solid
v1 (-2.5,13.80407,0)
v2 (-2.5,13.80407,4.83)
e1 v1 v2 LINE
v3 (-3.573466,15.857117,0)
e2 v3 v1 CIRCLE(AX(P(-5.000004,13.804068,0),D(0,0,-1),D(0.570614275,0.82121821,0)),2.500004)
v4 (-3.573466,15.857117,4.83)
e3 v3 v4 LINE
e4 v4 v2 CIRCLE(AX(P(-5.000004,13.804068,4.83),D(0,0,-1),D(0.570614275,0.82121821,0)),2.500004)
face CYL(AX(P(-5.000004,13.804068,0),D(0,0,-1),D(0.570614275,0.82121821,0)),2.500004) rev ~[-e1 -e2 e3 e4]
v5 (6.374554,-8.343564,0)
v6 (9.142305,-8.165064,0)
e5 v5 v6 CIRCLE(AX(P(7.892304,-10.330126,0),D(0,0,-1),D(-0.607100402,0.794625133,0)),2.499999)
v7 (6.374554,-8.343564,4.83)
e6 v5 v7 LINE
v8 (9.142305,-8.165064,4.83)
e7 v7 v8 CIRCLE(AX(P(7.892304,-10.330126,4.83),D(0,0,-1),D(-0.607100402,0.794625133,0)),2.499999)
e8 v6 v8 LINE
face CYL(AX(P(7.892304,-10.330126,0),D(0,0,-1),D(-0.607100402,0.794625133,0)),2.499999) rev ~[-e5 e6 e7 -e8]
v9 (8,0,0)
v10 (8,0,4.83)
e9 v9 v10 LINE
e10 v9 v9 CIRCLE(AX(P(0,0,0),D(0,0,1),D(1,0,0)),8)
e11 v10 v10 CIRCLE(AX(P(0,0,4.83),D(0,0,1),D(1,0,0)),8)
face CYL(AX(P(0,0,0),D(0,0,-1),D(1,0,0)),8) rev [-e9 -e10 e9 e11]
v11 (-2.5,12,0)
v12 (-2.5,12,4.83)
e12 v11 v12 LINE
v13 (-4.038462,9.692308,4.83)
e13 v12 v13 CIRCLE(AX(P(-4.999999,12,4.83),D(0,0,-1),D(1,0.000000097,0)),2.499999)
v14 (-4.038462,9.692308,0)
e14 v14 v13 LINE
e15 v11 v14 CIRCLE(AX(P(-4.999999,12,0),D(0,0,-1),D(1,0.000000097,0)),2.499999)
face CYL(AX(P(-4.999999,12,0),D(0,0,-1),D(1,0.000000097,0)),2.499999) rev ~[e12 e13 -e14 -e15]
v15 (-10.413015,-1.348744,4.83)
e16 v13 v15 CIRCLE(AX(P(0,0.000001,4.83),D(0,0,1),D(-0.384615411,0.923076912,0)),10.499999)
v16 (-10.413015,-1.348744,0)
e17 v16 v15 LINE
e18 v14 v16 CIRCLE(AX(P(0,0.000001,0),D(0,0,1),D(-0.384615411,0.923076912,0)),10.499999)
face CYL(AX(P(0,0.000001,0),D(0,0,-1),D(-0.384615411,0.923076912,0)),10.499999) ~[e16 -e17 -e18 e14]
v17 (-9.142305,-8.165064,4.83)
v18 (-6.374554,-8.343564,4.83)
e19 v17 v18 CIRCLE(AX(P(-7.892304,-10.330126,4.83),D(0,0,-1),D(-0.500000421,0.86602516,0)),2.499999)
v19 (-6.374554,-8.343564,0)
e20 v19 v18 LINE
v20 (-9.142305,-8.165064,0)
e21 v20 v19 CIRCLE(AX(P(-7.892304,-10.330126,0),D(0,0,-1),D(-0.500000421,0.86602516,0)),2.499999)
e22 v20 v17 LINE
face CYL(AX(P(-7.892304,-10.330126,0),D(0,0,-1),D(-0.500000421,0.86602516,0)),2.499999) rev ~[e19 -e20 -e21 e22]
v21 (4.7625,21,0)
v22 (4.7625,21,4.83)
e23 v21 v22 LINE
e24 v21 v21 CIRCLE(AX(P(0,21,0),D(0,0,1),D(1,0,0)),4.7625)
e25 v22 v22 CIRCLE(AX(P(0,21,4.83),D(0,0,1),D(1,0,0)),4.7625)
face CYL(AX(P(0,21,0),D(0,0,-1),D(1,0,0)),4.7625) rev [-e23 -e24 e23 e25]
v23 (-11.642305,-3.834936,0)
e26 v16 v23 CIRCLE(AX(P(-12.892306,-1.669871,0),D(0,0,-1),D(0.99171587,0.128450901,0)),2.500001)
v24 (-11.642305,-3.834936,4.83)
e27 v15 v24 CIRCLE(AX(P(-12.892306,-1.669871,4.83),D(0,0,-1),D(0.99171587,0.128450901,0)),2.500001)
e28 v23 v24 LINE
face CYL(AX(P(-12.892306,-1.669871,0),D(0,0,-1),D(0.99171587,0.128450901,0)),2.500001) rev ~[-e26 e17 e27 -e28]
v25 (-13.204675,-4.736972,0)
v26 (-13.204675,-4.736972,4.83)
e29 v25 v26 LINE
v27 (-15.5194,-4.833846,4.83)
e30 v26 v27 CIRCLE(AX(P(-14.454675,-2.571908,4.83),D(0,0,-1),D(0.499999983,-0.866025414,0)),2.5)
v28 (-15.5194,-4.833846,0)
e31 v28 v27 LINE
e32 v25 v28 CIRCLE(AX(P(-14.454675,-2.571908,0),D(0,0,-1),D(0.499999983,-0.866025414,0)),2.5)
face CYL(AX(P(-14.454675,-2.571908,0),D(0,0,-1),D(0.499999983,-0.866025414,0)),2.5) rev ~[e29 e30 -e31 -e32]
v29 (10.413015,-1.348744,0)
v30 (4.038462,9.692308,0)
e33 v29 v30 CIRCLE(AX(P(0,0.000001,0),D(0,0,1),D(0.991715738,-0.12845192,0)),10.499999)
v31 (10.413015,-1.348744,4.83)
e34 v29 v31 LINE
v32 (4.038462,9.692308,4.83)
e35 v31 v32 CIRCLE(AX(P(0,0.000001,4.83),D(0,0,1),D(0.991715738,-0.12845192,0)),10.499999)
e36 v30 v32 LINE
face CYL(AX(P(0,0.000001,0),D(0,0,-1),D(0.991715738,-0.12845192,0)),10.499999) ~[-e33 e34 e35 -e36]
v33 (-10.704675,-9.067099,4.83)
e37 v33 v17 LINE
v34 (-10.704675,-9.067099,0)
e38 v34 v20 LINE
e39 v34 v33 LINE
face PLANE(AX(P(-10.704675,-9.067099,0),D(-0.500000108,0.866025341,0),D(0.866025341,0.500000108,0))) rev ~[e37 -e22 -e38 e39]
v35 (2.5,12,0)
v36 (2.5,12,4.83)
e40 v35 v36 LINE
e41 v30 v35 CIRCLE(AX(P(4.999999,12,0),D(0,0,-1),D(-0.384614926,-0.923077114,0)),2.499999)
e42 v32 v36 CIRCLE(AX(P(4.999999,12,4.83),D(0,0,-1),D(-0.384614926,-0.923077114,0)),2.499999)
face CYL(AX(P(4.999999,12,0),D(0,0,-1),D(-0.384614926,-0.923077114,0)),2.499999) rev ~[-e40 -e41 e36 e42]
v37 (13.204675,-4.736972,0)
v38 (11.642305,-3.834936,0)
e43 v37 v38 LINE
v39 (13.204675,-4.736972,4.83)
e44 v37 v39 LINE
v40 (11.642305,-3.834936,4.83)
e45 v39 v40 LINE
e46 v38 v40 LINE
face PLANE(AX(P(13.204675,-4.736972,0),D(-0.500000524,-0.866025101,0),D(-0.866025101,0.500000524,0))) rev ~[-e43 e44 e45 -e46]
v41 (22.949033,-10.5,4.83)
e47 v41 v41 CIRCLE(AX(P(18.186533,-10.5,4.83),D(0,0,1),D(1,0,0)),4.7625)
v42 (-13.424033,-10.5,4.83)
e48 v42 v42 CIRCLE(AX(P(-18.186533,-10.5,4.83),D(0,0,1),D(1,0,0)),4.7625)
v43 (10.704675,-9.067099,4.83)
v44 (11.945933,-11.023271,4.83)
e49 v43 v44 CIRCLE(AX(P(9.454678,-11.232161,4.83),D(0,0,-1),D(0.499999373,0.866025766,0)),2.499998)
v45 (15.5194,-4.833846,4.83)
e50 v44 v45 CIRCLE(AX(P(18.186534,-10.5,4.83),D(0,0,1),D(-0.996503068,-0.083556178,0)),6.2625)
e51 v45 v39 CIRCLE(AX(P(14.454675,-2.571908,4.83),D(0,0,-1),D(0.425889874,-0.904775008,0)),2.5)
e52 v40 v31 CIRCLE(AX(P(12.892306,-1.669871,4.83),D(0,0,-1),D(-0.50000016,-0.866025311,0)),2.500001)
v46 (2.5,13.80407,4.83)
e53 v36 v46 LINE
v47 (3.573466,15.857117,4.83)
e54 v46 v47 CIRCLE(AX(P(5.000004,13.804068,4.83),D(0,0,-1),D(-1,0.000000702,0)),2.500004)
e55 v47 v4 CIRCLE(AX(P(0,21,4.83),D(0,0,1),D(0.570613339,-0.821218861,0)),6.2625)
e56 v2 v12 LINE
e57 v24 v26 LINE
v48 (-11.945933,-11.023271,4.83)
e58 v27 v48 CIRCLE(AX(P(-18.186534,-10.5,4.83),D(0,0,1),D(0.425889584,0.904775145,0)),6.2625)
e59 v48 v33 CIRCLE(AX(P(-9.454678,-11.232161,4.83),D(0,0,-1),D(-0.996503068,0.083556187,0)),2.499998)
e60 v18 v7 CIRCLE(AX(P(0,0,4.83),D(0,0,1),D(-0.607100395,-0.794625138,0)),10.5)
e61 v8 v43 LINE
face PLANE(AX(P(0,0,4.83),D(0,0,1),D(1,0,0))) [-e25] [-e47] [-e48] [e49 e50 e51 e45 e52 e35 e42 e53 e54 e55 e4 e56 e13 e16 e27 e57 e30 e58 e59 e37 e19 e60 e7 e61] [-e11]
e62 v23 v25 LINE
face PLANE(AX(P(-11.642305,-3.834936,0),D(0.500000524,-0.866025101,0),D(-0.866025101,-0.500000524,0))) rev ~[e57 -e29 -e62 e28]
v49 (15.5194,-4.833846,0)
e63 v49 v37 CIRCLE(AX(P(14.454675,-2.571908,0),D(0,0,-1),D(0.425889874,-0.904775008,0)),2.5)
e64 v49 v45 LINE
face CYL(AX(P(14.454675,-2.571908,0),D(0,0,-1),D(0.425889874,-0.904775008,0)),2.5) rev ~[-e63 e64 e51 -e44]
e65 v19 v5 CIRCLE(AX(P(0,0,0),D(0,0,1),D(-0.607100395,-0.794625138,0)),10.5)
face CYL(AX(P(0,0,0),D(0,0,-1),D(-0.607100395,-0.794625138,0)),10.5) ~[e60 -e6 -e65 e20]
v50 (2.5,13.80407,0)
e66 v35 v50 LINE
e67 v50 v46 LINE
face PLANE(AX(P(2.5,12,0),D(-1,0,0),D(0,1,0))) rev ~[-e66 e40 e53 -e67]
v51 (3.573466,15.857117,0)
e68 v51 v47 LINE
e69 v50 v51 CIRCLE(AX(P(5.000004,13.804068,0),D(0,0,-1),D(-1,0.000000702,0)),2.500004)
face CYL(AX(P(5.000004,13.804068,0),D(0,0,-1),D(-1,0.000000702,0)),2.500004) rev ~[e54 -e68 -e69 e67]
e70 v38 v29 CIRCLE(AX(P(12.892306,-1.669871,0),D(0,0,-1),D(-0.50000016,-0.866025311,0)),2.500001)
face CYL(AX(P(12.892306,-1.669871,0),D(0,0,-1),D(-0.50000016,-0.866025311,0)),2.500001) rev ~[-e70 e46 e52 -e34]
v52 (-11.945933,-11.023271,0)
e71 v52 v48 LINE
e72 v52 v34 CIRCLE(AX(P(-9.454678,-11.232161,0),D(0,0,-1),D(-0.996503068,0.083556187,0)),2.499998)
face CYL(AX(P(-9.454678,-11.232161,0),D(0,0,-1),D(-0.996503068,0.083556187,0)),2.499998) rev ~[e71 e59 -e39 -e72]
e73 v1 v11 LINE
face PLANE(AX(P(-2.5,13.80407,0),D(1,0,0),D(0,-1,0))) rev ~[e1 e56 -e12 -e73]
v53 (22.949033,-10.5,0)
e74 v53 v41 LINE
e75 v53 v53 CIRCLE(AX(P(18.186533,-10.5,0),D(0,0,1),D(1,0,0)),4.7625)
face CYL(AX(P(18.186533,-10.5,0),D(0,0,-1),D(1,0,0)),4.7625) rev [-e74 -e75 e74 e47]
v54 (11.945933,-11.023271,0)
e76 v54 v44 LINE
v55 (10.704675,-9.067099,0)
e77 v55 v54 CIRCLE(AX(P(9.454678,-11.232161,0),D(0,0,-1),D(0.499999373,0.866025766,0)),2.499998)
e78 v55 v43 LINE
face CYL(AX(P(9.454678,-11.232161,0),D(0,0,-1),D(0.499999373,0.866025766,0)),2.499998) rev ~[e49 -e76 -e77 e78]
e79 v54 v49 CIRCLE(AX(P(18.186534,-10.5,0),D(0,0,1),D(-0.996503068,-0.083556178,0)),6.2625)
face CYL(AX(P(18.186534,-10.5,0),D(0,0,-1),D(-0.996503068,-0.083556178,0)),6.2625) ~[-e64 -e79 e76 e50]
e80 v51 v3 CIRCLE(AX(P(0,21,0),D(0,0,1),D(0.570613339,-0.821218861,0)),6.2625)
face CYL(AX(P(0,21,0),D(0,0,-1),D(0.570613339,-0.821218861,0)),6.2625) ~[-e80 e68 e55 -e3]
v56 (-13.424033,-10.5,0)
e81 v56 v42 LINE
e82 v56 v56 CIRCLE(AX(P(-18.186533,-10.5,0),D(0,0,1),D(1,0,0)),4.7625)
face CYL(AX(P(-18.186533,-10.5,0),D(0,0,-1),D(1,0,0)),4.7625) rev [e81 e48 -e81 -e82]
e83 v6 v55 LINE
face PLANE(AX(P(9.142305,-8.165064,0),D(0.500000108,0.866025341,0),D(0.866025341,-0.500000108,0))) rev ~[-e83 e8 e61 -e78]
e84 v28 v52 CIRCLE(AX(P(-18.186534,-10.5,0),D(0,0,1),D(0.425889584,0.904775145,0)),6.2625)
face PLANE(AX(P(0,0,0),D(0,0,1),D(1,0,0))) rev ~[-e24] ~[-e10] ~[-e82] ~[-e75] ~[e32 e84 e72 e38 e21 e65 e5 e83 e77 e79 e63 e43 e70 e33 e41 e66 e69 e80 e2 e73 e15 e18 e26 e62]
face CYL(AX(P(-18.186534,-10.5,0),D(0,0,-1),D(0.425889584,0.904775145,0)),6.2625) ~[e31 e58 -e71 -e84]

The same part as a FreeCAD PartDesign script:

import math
import FreeCAD as App
import Part
import Sketcher
Q = App.Units.Quantity

doc = App.newDocument("Part")
body = doc.addObject("PartDesign::Body", "Body")

sketch1 = body.newObject("Sketcher::SketchObject", "Sketch")
sketch1.AttachmentSupport = (doc.getObject("XY_Plane"), [""])
sketch1.MapMode = "FlatFace"
sketch1.addGeometry([
    Part.ArcOfCircle(Part.Circle(App.Vector(5, 13.8, 0), App.Vector(0, 0, 1), 2.5), math.radians(125), math.radians(180)),
    Part.ArcOfCircle(Part.Circle(App.Vector(0, 21, 0), App.Vector(0, 0, 1), 6.3), math.radians(-55), math.radians(235)),
    Part.ArcOfCircle(Part.Circle(App.Vector(-5, 13.8, 0), App.Vector(0, 0, 1), 2.5), math.radians(0), math.radians(55)),
    Part.LineSegment(App.Vector(-2.5, 13.8, 0), App.Vector(-2.5, 12, 0)),
    Part.ArcOfCircle(Part.Circle(App.Vector(-5, 12, 0), App.Vector(0, 0, 1), 2.5), math.radians(-67), math.radians(0)),
    Part.ArcOfCircle(Part.Circle(App.Vector(0, 0, 0), App.Vector(0, 0, 1), 10.5), math.radians(113), math.radians(187)),
    Part.ArcOfCircle(Part.Circle(App.Vector(-12.9, -1.7, 0), App.Vector(0, 0, 1), 2.5), math.radians(-60), math.radians(7)),
    Part.LineSegment(App.Vector(-11.6, -3.8, 0), App.Vector(-13.2, -4.7, 0)),
    Part.ArcOfCircle(Part.Circle(App.Vector(-14.5, -2.6, 0), App.Vector(0, 0, 1), 2.5), math.radians(-115), math.radians(-60)),
    Part.ArcOfCircle(Part.Circle(App.Vector(-18.2, -10.5, 0), App.Vector(0, 0, 1), 6.3), math.radians(65), math.radians(355)),
    Part.ArcOfCircle(Part.Circle(App.Vector(-9.5, -11.2, 0), App.Vector(0, 0, 1), 2.5), math.radians(120), math.radians(175)),
    Part.LineSegment(App.Vector(-10.7, -9.1, 0), App.Vector(-9.1, -8.2, 0)),
    Part.ArcOfCircle(Part.Circle(App.Vector(-7.9, -10.3, 0), App.Vector(0, 0, 1), 2.5), math.radians(53), math.radians(120)),
    Part.ArcOfCircle(Part.Circle(App.Vector(0, 0, 0), App.Vector(0, 0, 1), 10.5), math.radians(-127), math.radians(-53)),
    Part.ArcOfCircle(Part.Circle(App.Vector(7.9, -10.3, 0), App.Vector(0, 0, 1), 2.5), math.radians(60), math.radians(127)),
    Part.LineSegment(App.Vector(9.1, -8.2, 0), App.Vector(10.7, -9.1, 0)),
    Part.ArcOfCircle(Part.Circle(App.Vector(9.5, -11.2, 0), App.Vector(0, 0, 1), 2.5), math.radians(5), math.radians(60)),
    Part.ArcOfCircle(Part.Circle(App.Vector(18.2, -10.5, 0), App.Vector(0, 0, 1), 6.3), math.radians(-175), math.radians(115)),
    Part.ArcOfCircle(Part.Circle(App.Vector(14.5, -2.6, 0), App.Vector(0, 0, 1), 2.5), math.radians(-120), math.radians(-65)),
    Part.LineSegment(App.Vector(13.2, -4.7, 0), App.Vector(11.6, -3.8, 0)),
    Part.ArcOfCircle(Part.Circle(App.Vector(12.9, -1.7, 0), App.Vector(0, 0, 1), 2.5), math.radians(173), math.radians(240)),
    Part.ArcOfCircle(Part.Circle(App.Vector(0, 0, 0), App.Vector(0, 0, 1), 10.5), math.radians(-7), math.radians(67)),
    Part.ArcOfCircle(Part.Circle(App.Vector(5, 12, 0), App.Vector(0, 0, 1), 2.5), math.radians(180), math.radians(247)),
    Part.LineSegment(App.Vector(2.5, 12, 0), App.Vector(2.5, 13.8, 0)),
    Part.Circle(App.Vector(-18.2, -10.5, 0), App.Vector(0, 0, 1), 4.8),
    Part.Circle(App.Vector(18.2, -10.5, 0), App.Vector(0, 0, 1), 4.8),
    Part.Circle(App.Vector(0, 0, 0), App.Vector(0, 0, 1), 8),
    Part.Circle(App.Vector(0, 21, 0), App.Vector(0, 0, 1), 4.8),
], False)
sketch1.addConstraint([
    Sketcher.Constraint("Tangent", 0, 1, 1, 1),
    Sketcher.Constraint("Tangent", 1, 2, 2, 2),
    Sketcher.Constraint("Tangent", 2, 1, 3, 1),
    Sketcher.Constraint("Tangent", 3, 2, 4, 2),
    Sketcher.Constraint("Tangent", 4, 1, 5, 1),
    Sketcher.Constraint("Tangent", 5, 2, 6, 2),
    Sketcher.Constraint("Tangent", 6, 1, 7, 1),
    Sketcher.Constraint("Tangent", 7, 2, 8, 2),
    Sketcher.Constraint("Tangent", 8, 1, 9, 1),
    Sketcher.Constraint("Tangent", 9, 2, 10, 2),
    Sketcher.Constraint("Tangent", 10, 1, 11, 1),
    Sketcher.Constraint("Tangent", 11, 2, 12, 2),
    Sketcher.Constraint("Tangent", 12, 1, 13, 1),
    Sketcher.Constraint("Tangent", 13, 2, 14, 2),
    Sketcher.Constraint("Tangent", 14, 1, 15, 1),
    Sketcher.Constraint("Tangent", 15, 2, 16, 2),
    Sketcher.Constraint("Tangent", 16, 1, 17, 1),
    Sketcher.Constraint("Tangent", 17, 2, 18, 2),
    Sketcher.Constraint("Tangent", 18, 1, 19, 1),
    Sketcher.Constraint("Tangent", 19, 2, 20, 2),
    Sketcher.Constraint("Tangent", 20, 1, 21, 1),
    Sketcher.Constraint("Tangent", 21, 2, 22, 2),
    Sketcher.Constraint("Tangent", 22, 1, 23, 1),
    Sketcher.Constraint("Tangent", 23, 2, 0, 2),
    Sketcher.Constraint("Vertical", 3),
    Sketcher.Constraint("Vertical", 23),
    Sketcher.Constraint("Coincident", 5, 3, -1, 1),
    Sketcher.Constraint("Coincident", 13, 3, -1, 1),
    Sketcher.Constraint("Coincident", 21, 3, -1, 1),
    Sketcher.Constraint("Coincident", 26, 3, -1, 1),
    Sketcher.Constraint("Coincident", 24, 3, 9, 3),
    Sketcher.Constraint("Coincident", 25, 3, 17, 3),
    Sketcher.Constraint("Coincident", 27, 3, 1, 3),
    Sketcher.Constraint("Equal", 0, 2),
    Sketcher.Constraint("Equal", 6, 8),
    Sketcher.Constraint("Equal", 1, 9),
    Sketcher.Constraint("Equal", 4, 10),
    Sketcher.Constraint("Equal", 10, 12),
    Sketcher.Constraint("Equal", 5, 13),
    Sketcher.Constraint("Equal", 12, 14),
    Sketcher.Constraint("Equal", 14, 16),
    Sketcher.Constraint("Equal", 9, 17),
    Sketcher.Constraint("Equal", 14, 18),
    Sketcher.Constraint("Equal", 18, 20),
    Sketcher.Constraint("Equal", 13, 21),
    Sketcher.Constraint("Equal", 18, 22),
    Sketcher.Constraint("Equal", 24, 25),
    Sketcher.Constraint("Equal", 25, 27),
    Sketcher.Constraint("Symmetric", 0, 3, 2, 3, -2),
    Sketcher.Constraint("Symmetric", 10, 3, 16, 3, -2),
    Sketcher.Constraint("Symmetric", 8, 3, 18, 3, -2),
    Sketcher.Constraint("Symmetric", 6, 3, 20, 3, -2),
    Sketcher.Constraint("Parallel", 7, 11),
    Sketcher.Constraint("Parallel", 15, 19),
    Sketcher.Constraint("Equal", 7, 11),
    Sketcher.Constraint("Diameter", 26, 16.0),
    Sketcher.Constraint("Radius", 4, 2.499999),
    Sketcher.Constraint("Radius", 5, 10.499999),
    Sketcher.Constraint("Angle", 11, Q("30.000007 deg")),
    Sketcher.Constraint("Diameter", 24, 9.525),
    Sketcher.Constraint("DistanceY", -1, 1, 1, 3, 21.0),
    Sketcher.Constraint("DistanceX", 4, 3, -1, 1, 4.999999),
    Sketcher.Constraint("DistanceX", 6, 3, 12, 3, 5.000002),
    Sketcher.Constraint("DistanceY", 9, 3, -1, 1, 10.5),
    Sketcher.Constraint("Radius", 1, 6.2625),
    Sketcher.Constraint("Radius", 0, 2.500004),
    Sketcher.Constraint("DistanceX", 8, 1, -1, 1, 15.5194),
])
pad1 = body.newObject("PartDesign::Pad", "Pad")
pad1.Profile = sketch1
pad1.Length = 4.83

doc.recompute()
